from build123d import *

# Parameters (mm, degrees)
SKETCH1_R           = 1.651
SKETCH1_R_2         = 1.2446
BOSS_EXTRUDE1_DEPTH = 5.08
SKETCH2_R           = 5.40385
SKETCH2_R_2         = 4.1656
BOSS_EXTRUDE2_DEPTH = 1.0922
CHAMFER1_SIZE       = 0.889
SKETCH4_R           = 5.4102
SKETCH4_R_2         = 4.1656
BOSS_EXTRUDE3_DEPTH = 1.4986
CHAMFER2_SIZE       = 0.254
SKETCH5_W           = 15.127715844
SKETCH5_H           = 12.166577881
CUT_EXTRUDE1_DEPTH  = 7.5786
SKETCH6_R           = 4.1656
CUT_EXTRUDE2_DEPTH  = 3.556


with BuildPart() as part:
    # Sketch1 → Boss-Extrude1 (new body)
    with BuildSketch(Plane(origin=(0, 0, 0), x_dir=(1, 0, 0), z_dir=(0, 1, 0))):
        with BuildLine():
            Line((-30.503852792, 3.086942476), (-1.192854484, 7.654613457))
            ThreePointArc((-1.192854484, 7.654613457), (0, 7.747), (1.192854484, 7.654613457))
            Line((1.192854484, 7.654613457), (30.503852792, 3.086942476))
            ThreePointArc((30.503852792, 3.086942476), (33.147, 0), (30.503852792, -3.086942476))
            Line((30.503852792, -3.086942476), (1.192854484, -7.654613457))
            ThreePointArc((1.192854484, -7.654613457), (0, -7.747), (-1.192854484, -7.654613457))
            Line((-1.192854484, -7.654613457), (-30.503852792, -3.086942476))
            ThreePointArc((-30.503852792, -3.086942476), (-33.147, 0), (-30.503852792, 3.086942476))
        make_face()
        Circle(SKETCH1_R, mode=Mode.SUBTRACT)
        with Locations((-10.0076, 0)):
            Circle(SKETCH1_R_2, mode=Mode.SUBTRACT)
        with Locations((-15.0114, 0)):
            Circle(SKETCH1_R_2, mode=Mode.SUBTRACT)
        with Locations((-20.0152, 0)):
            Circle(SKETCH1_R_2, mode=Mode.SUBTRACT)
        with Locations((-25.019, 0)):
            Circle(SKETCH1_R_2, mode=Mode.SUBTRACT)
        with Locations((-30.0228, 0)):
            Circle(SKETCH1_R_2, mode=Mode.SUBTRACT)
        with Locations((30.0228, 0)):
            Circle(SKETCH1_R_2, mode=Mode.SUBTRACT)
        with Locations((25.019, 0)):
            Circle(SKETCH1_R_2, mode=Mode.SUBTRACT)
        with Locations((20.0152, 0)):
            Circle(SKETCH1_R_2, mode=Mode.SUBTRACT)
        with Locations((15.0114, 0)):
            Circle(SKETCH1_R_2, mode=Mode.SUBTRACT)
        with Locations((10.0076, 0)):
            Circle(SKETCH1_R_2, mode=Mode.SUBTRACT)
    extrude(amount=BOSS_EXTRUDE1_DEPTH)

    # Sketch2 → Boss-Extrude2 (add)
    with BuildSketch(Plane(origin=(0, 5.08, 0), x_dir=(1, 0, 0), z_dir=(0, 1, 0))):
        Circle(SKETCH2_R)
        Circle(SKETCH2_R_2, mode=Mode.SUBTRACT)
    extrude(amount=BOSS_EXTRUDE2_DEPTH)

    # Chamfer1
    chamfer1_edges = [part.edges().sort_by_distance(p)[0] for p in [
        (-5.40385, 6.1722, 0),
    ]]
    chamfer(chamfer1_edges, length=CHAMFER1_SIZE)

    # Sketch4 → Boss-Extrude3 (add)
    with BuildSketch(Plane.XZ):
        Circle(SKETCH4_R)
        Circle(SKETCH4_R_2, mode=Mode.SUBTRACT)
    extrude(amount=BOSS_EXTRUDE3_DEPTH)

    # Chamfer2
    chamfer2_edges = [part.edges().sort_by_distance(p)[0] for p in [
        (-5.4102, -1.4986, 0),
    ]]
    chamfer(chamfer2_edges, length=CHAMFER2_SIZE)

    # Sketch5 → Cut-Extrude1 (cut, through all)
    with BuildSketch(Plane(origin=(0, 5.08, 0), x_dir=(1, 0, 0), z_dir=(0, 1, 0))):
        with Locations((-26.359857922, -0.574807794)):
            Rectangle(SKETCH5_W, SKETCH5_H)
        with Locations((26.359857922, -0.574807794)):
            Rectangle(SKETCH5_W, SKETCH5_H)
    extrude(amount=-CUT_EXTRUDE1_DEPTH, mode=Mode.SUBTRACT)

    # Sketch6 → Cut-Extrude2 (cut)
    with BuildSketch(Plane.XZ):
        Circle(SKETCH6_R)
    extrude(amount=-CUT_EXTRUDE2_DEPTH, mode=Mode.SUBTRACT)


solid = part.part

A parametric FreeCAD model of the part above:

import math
import FreeCAD as App
import Part
import Sketcher
Q = App.Units.Quantity


def edges_at(feature, points):
    """Names of the edges that pass closest to the given points."""
    edges = feature.Shape.Edges
    near = lambda p: min(range(len(edges)), key=lambda i: edges[i].distToShape(Part.Vertex(*p))[0])
    return sorted({f"Edge{near(p) + 1}" for p in points})

doc = App.newDocument("Part")
body = doc.addObject("PartDesign::Body", "Body")

# Sketch on XZ plane
sketch1 = body.newObject("Sketcher::SketchObject", "Sketch")
sketch1.AttachmentSupport = (doc.getObject("XZ_Plane"), [""])
sketch1.MapMode = "FlatFace"
sketch1.addGeometry([
    Part.LineSegment(App.Vector(-1.2, -7.7, 0), App.Vector(-30.5, -3.1, 0)),  # 0
    Part.ArcOfCircle(Part.Circle(App.Vector(-30, 0, 0), App.Vector(0, 0, 1), 3.1), math.radians(99), math.radians(261)),  # 1
    Part.LineSegment(App.Vector(-30.5, 3.1, 0), App.Vector(-1.2, 7.7, 0)),  # 2
    Part.ArcOfCircle(Part.Circle(App.Vector(0, 0, 0), App.Vector(0, 0, 1), 7.7), math.radians(81.14), math.radians(98.86)),  # 3
    Part.LineSegment(App.Vector(1.2, 7.7, 0), App.Vector(30.5, 3.1, 0)),  # 4
    Part.ArcOfCircle(Part.Circle(App.Vector(30, 0, 0), App.Vector(0, 0, 1), 3.1), math.radians(-81), math.radians(81)),  # 5
    Part.LineSegment(App.Vector(30.5, -3.1, 0), App.Vector(1.2, -7.7, 0)),  # 6
    Part.ArcOfCircle(Part.Circle(App.Vector(0, 0, 0), App.Vector(0, 0, 1), 7.7), math.radians(-98.86), math.radians(-81.14)),  # 7
    Part.Circle(App.Vector(30, 0, 0), App.Vector(0, 0, 1), 1.2),  # 8
    Part.Circle(App.Vector(25, 0, 0), App.Vector(0, 0, 1), 1.2),  # 9
    Part.Circle(App.Vector(20, 0, 0), App.Vector(0, 0, 1), 1.2),  # 10
    Part.Circle(App.Vector(15, 0, 0), App.Vector(0, 0, 1), 1.2),  # 11
    Part.Circle(App.Vector(10, 0, 0), App.Vector(0, 0, 1), 1.2),  # 12
    Part.Circle(App.Vector(0, 0, 0), App.Vector(0, 0, 1), 1.7),  # 13
    Part.Circle(App.Vector(-10, 0, 0), App.Vector(0, 0, 1), 1.2),  # 14
    Part.Circle(App.Vector(-15, 0, 0), App.Vector(0, 0, 1), 1.2),  # 15
    Part.Circle(App.Vector(-20, 0, 0), App.Vector(0, 0, 1), 1.2),  # 16
    Part.Circle(App.Vector(-25, 0, 0), App.Vector(0, 0, 1), 1.2),  # 17
    Part.Circle(App.Vector(-30, 0, 0), App.Vector(0, 0, 1), 1.2),  # 18
], False)
sketch1.addConstraint([
    Sketcher.Constraint("Tangent", 0, 2, 1, 2),
    Sketcher.Constraint("Tangent", 1, 1, 2, 1),
    Sketcher.Constraint("Tangent", 2, 2, 3, 2),
    Sketcher.Constraint("Tangent", 3, 1, 4, 1),
    Sketcher.Constraint("Tangent", 4, 2, 5, 2),
    Sketcher.Constraint("Tangent", 5, 1, 6, 1),
    Sketcher.Constraint("Tangent", 6, 2, 7, 2),
    Sketcher.Constraint("Tangent", 7, 1, 0, 1),
    Sketcher.Constraint("Coincident", 3, 3, -1, 1),
    Sketcher.Constraint("Coincident", 7, 3, -1, 1),
    Sketcher.Constraint("Coincident", 13, 3, -1, 1),
    Sketcher.Constraint("Coincident", 8, 3, 5, 3),
    Sketcher.Constraint("Coincident", 18, 3, 1, 3),
    Sketcher.Constraint("Equal", 1, 5),
    Sketcher.Constraint("Equal", 3, 7),
    Sketcher.Constraint("Equal", 8, 9),
    Sketcher.Constraint("Equal", 9, 10),
    Sketcher.Constraint("Equal", 10, 11),
    Sketcher.Constraint("Equal", 11, 12),
    Sketcher.Constraint("Equal", 12, 14),
    Sketcher.Constraint("Equal", 14, 15),
    Sketcher.Constraint("Equal", 15, 16),
    Sketcher.Constraint("Equal", 16, 17),
    Sketcher.Constraint("Equal", 17, 18),
    Sketcher.Constraint("Symmetric", 1, 3, 5, 3, -1, 1),
    Sketcher.Constraint("Symmetric", 12, 3, 14, 3, -1, 1),
    Sketcher.Constraint("Symmetric", 11, 3, 15, 3, -1, 1),
    Sketcher.Constraint("Symmetric", 10, 3, 16, 3, -1, 1),
    Sketcher.Constraint("Symmetric", 9, 3, 17, 3, -1, 1),
    Sketcher.Constraint("PointOnObject", 1, 3, -1),
    Sketcher.Constraint("PointOnObject", 9, 3, -1),
    Sketcher.Constraint("PointOnObject", 10, 3, -1),
    Sketcher.Constraint("PointOnObject", 11, 3, -1),
    Sketcher.Constraint("PointOnObject", 12, 3, -1),
    Sketcher.Constraint("Diameter", 13, Q("0.13 in")),
    Sketcher.Constraint("Diameter", 8, Q("0.098 in")),
    Sketcher.Constraint("Radius", 1, Q("0.123 in")),
    Sketcher.Constraint("Radius", 3, Q("0.305 in")),
    Sketcher.Constraint("DistanceX", 1, 3, -1, 1, Q("1.182 in")),
    Sketcher.Constraint("DistanceX", -1, 1, 9, 3, Q("0.985 in")),
    Sketcher.Constraint("DistanceX", -1, 1, 10, 3, Q("0.788 in")),
    Sketcher.Constraint("DistanceX", -1, 1, 11, 3, Q("0.591 in")),
    Sketcher.Constraint("DistanceX", -1, 1, 12, 3, Q("0.394 in")),
])
pad1 = body.newObject("PartDesign::Pad", "Pad")
pad1.Profile = sketch1
pad1.Length = Q("0.2 in")
pad1.Reversed = True

# Sketch on XZ plane
sketch2 = body.newObject("Sketcher::SketchObject", "Sketch001")
sketch2.AttachmentSupport = (doc.getObject("XZ_Plane"), [""])
sketch2.MapMode = "FlatFace"
sketch2.AttachmentOffset = App.Placement(App.Vector(0, 0, -0.2 * 25.4), App.Rotation())
sketch2.addGeometry([
    Part.Circle(App.Vector(0, 0, 0), App.Vector(0, 0, 1), 5.4),
    Part.Circle(App.Vector(0, 0, 0), App.Vector(0, 0, 1), 4.2),
], False)
sketch2.addConstraint([
    Sketcher.Constraint("Coincident", 0, 3, -1, 1),
    Sketcher.Constraint("Coincident", 1, 3, -1, 1),
    Sketcher.Constraint("Diameter", 1, Q("0.328 in")),
    Sketcher.Constraint("Diameter", 0, Q("0.4255 in")),
])
pad2 = body.newObject("PartDesign::Pad", "Pad001")
pad2.Profile = sketch2
pad2.Length = Q("0.043 in")
pad2.Reversed = True
doc.recompute()

chamfer = body.newObject("PartDesign::Chamfer", "Chamfer")
chamfer.Base = (pad2, edges_at(pad2, [(-5.404, 6.172, 0)]))
chamfer.Size = Q("0.035 in")

# Sketch on XZ plane
sketch3 = body.newObject("Sketcher::SketchObject", "Sketch002")
sketch3.AttachmentSupport = (doc.getObject("XZ_Plane"), [""])
sketch3.MapMode = "FlatFace"
sketch3.addGeometry([
    Part.Circle(App.Vector(0, 0, 0), App.Vector(0, 0, 1), 5.4),
    Part.Circle(App.Vector(0, 0, 0), App.Vector(0, 0, 1), 4.2),
], False)
sketch3.addConstraint([
    Sketcher.Constraint("Coincident", 0, 3, -1, 1),
    Sketcher.Constraint("Coincident", 1, 3, -1, 1),
    Sketcher.Constraint("Diameter", 0, Q("0.426 in")),
    Sketcher.Constraint("Diameter", 1, Q("0.328 in")),
])
pad3 = body.newObject("PartDesign::Pad", "Pad002")
pad3.Profile = sketch3
pad3.Length = Q("0.059 in")
doc.recompute()

chamfer2 = body.newObject("PartDesign::Chamfer", "Chamfer001")
chamfer2.Base = (pad3, edges_at(pad3, [(-5.41, -1.499, 0)]))
chamfer2.Size = Q("0.01 in")

# Sketch on XZ plane
sketch4 = body.newObject("Sketcher::SketchObject", "Sketch003")
sketch4.AttachmentSupport = (doc.getObject("XZ_Plane"), [""])
sketch4.MapMode = "FlatFace"
sketch4.AttachmentOffset = App.Placement(App.Vector(0, 0, -0.2 * 25.4), App.Rotation())
sketch4.addGeometry([
    Part.LineSegment(App.Vector(-34, -6, 0), App.Vector(-34, 7, 0)),  # 0
    Part.LineSegment(App.Vector(-34, 7, 0), App.Vector(-19, 7, 0)),  # 1
    Part.LineSegment(App.Vector(-19, 7, 0), App.Vector(-19, -6, 0)),  # 2
    Part.LineSegment(App.Vector(-19, -6, 0), App.Vector(-34, -6, 0)),  # 3
    Part.LineSegment(App.Vector(19, -6, 0), App.Vector(19, 7, 0)),  # 4
    Part.LineSegment(App.Vector(19, 7, 0), App.Vector(34, 7, 0)),  # 5
    Part.LineSegment(App.Vector(34, 7, 0), App.Vector(34, -6, 0)),  # 6
    Part.LineSegment(App.Vector(34, -6, 0), App.Vector(19, -6, 0)),  # 7
], False)
sketch4.addConstraint([
    Sketcher.Constraint("Coincident", 0, 2, 1, 1),
    Sketcher.Constraint("Coincident", 1, 2, 2, 1),
    Sketcher.Constraint("Coincident", 2, 2, 3, 1),
    Sketcher.Constraint("Coincident", 3, 2, 0, 1),
    Sketcher.Constraint("Coincident", 4, 2, 5, 1),
    Sketcher.Constraint("Coincident", 5, 2, 6, 1),
    Sketcher.Constraint("Coincident", 6, 2, 7, 1),
    Sketcher.Constraint("Coincident", 7, 2, 4, 1),
    Sketcher.Constraint("Vertical", 0),
    Sketcher.Constraint("Horizontal", 1),
    Sketcher.Constraint("Vertical", 2),
    Sketcher.Constraint("Horizontal", 3),
    Sketcher.Constraint("Vertical", 4),
    Sketcher.Constraint("Horizontal", 5),
    Sketcher.Constraint("Vertical", 6),
    Sketcher.Constraint("Horizontal", 7),
    Sketcher.Constraint("Symmetric", 1, 2, 4, 2, -2),
    Sketcher.Constraint("Symmetric", 3, 2, 6, 2, -2),
    Sketcher.Constraint("DistanceX", 1, 2, -1, 1, Q("0.74 in")),
    Sketcher.Constraint("DistanceX", 1, 1, 1, 2, 15.127716),
    Sketcher.Constraint("DistanceY", 0, 1, 0, 2, 12.166578),
    Sketcher.Constraint("DistanceY", 2, 2, -1, 1, 5.508481),
])
pocket1 = body.newObject("PartDesign::Pocket", "Pocket")
pocket1.Profile = sketch4
pocket1.Type = "ThroughAll"
pocket1.Reversed = True

# Sketch on XZ plane
sketch5 = body.newObject("Sketcher::SketchObject", "Sketch004")
sketch5.AttachmentSupport = (doc.getObject("XZ_Plane"), [""])
sketch5.MapMode = "FlatFace"
sketch5.addGeometry(Part.Circle(App.Vector(0, 0, 0), App.Vector(0, 0, 1), 4.2), False)
sketch5.addConstraint([
    Sketcher.Constraint("Coincident", 0, 3, -1, 1),
    Sketcher.Constraint("Diameter", 0, Q("0.328 in")),
])
pocket2 = body.newObject("PartDesign::Pocket", "Pocket001")
pocket2.Profile = sketch5
pocket2.Length = Q("0.14 in")

doc.recompute()
